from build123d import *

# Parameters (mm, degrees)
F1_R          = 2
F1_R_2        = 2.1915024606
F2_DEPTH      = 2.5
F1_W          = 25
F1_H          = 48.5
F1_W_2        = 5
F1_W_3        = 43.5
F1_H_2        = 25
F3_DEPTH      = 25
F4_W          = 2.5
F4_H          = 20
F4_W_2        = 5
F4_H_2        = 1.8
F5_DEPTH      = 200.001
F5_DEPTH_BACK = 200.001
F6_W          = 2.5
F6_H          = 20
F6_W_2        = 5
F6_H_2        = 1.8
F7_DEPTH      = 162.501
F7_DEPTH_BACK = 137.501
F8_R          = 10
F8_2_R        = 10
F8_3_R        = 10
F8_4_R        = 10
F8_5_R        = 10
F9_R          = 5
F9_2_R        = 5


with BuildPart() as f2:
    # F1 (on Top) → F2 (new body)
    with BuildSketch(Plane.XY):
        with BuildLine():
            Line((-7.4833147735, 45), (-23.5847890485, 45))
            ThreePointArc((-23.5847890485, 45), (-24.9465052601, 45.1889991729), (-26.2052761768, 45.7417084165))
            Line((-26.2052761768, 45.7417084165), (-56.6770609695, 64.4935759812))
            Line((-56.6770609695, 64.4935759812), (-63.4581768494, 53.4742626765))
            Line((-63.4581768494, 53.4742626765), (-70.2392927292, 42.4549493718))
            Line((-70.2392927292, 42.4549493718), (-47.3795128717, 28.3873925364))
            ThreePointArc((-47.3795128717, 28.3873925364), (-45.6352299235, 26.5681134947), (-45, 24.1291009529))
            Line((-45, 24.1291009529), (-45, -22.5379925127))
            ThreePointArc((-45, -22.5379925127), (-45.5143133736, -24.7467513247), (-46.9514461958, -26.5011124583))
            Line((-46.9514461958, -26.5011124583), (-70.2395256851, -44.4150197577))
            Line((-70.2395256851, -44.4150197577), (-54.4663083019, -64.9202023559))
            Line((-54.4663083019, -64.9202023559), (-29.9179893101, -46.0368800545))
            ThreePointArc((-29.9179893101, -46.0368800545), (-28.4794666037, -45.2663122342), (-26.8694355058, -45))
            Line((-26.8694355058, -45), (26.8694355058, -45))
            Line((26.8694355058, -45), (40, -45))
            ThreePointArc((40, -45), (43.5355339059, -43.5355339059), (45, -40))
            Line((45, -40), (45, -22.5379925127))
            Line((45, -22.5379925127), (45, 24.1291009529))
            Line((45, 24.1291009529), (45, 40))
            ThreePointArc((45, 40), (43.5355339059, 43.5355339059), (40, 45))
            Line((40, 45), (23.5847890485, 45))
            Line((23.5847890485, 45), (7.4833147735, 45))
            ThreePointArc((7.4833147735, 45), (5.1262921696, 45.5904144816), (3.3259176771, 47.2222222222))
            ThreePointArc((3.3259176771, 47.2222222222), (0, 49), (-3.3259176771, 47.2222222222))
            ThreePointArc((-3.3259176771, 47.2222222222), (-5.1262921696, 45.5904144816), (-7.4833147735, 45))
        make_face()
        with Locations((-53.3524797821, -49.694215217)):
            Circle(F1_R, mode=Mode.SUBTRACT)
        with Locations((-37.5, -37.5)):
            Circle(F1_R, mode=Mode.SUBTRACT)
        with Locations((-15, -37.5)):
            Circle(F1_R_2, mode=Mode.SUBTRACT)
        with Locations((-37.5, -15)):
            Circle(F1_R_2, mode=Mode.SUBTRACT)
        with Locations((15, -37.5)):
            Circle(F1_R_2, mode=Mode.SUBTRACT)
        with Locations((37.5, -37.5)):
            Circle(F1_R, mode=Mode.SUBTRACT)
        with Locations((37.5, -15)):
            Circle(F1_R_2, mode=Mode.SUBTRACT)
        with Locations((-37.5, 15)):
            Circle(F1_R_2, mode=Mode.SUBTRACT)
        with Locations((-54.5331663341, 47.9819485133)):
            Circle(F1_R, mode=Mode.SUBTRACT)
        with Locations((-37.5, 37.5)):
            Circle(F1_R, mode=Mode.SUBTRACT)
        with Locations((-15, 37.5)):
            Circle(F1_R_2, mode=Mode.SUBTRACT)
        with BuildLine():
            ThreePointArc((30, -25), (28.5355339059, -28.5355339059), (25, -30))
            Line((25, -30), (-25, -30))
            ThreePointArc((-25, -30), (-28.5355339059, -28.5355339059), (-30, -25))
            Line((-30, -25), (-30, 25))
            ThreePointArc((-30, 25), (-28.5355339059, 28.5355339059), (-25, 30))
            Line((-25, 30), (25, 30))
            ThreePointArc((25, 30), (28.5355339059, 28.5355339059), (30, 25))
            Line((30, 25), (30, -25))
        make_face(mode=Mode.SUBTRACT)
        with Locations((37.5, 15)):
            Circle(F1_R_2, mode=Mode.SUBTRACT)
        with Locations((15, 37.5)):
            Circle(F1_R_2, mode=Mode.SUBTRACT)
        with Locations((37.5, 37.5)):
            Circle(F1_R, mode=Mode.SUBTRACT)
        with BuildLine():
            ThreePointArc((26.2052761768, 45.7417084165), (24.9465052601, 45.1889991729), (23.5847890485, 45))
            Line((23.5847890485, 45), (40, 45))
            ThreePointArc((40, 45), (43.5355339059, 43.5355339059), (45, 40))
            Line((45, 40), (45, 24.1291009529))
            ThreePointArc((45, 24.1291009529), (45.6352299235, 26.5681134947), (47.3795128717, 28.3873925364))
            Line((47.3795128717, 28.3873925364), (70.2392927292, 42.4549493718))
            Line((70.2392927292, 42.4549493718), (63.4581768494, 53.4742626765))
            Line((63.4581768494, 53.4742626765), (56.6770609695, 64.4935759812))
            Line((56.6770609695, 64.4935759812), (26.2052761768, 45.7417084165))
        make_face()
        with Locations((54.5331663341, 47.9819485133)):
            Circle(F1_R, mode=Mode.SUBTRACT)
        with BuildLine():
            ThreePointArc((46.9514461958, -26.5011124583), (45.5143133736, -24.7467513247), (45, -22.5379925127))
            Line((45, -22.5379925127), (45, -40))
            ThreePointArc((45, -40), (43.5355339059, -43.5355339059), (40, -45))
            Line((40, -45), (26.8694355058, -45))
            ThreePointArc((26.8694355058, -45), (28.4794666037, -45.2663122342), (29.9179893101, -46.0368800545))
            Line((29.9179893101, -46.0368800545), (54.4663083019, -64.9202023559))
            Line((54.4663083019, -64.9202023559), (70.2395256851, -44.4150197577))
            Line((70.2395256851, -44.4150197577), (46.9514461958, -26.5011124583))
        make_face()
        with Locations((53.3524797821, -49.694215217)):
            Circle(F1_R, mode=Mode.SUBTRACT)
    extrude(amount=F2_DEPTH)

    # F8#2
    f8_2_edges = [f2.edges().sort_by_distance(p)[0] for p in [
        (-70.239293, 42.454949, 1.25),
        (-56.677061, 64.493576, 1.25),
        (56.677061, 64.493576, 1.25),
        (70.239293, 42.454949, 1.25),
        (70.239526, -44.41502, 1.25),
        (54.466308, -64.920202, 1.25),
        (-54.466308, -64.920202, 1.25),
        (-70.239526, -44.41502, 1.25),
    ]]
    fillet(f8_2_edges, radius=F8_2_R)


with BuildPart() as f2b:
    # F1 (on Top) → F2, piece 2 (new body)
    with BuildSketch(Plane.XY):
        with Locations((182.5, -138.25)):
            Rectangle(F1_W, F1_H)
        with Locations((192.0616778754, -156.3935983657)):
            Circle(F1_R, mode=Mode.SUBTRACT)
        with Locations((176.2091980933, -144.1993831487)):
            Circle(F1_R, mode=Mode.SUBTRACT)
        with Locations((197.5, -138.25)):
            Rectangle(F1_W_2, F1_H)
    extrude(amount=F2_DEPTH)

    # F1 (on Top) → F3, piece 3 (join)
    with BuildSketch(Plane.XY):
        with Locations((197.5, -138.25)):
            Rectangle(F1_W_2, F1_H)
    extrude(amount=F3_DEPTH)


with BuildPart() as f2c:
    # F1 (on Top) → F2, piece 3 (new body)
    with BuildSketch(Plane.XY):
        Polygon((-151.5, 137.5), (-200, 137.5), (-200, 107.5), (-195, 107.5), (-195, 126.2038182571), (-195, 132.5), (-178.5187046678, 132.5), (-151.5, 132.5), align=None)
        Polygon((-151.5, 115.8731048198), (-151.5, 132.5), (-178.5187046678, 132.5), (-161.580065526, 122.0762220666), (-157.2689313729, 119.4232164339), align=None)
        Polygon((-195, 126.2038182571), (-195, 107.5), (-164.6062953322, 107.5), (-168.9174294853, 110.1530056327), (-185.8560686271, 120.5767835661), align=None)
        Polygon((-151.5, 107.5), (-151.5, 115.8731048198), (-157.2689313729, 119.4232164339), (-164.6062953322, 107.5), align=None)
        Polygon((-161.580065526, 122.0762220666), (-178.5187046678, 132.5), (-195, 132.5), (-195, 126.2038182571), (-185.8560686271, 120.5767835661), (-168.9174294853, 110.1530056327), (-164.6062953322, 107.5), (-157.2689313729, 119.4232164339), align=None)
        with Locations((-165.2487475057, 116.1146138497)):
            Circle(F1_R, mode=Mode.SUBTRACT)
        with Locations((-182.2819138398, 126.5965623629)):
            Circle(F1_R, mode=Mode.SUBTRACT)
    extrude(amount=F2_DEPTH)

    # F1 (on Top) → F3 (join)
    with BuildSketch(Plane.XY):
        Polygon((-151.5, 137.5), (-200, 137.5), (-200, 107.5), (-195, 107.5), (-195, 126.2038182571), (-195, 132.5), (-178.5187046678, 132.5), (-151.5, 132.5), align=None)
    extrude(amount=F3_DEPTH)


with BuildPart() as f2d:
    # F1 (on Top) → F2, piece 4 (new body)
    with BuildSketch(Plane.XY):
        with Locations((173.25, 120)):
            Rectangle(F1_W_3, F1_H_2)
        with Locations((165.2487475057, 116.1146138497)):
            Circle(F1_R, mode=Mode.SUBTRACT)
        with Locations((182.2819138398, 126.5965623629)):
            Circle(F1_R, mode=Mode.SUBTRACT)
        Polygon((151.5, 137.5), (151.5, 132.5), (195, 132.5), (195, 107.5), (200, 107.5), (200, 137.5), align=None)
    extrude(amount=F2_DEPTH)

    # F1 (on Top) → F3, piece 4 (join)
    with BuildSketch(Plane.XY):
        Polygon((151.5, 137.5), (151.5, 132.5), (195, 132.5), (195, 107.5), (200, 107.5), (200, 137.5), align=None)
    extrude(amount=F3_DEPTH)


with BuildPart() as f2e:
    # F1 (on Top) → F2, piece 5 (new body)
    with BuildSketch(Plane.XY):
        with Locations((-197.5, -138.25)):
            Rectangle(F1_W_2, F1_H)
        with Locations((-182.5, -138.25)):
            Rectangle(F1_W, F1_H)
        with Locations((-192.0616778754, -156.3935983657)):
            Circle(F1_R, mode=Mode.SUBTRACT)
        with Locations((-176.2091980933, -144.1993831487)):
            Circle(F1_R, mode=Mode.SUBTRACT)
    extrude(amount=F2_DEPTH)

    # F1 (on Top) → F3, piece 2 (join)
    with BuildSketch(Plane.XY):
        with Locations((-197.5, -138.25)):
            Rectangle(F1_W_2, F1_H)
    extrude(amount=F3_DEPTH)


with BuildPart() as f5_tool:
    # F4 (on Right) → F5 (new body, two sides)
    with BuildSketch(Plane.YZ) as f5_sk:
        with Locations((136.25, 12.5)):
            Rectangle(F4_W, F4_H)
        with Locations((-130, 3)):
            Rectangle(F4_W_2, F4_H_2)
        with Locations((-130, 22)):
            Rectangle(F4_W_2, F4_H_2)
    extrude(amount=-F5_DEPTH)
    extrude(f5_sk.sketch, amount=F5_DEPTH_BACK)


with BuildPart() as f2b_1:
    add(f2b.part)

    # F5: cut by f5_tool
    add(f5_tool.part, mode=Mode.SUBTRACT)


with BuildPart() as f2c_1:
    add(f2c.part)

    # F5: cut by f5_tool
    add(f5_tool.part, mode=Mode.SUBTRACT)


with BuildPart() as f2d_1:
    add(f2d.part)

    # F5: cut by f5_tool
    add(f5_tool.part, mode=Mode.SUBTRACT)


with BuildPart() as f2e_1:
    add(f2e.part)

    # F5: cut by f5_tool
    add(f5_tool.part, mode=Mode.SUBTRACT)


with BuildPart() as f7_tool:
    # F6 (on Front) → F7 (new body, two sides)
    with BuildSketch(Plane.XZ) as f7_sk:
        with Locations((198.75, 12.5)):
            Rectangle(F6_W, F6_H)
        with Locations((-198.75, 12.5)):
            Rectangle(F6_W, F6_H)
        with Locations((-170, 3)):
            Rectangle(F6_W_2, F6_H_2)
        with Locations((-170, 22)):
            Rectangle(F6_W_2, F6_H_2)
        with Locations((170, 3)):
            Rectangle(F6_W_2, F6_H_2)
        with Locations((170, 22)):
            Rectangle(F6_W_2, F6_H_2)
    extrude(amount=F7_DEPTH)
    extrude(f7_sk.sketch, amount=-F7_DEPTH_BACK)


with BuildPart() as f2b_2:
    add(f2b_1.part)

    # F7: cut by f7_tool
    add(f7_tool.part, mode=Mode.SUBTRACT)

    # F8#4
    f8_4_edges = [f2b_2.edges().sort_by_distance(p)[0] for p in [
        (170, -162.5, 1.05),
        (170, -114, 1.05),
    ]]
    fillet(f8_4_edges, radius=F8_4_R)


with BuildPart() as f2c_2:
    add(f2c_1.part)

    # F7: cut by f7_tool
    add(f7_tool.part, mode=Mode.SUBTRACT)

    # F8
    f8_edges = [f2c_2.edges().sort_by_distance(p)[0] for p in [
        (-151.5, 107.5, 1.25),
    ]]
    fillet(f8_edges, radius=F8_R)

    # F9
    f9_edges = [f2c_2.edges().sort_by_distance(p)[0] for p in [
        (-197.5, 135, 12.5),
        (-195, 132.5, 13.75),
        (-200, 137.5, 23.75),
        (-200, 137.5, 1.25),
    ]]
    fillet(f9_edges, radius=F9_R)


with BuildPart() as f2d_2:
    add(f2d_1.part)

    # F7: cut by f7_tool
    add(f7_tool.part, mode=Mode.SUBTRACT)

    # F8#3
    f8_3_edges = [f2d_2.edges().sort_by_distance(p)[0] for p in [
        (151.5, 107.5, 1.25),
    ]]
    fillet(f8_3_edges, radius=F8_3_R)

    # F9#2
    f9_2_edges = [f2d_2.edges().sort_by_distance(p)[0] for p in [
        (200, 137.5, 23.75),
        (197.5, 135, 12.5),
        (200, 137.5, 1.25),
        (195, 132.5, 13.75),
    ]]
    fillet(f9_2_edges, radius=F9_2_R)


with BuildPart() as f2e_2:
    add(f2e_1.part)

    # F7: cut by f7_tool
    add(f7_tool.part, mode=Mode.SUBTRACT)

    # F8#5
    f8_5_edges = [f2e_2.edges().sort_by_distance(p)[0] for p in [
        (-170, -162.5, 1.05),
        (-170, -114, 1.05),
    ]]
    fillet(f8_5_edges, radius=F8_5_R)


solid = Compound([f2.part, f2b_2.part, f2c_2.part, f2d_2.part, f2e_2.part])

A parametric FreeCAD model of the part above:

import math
import FreeCAD as App
import Part
import Sketcher

V = App.Vector


def edges_at(feature, points):
    """Names of the edges that pass closest to the given points."""
    edges = feature.Shape.Edges
    near = lambda p: min(range(len(edges)), key=lambda i: edges[i].distToShape(Part.Vertex(*p))[0])
    return sorted({f"Edge{near(p) + 1}" for p in points})

doc = App.newDocument("Part")
params = doc.addObject("Spreadsheet::Sheet", "Params")
for row, (alias, value) in enumerate([
    ("sketch1_diameter", "4 mm"),
    ("sketch1_radius", "5 mm"),
    ("sketch1_radius2", "4 mm"),
    ("sketch1_width", "50 mm"),
    ("sketch1_length", "25.87 mm"),
    ("pad1_length", "2.5 mm"),
    ("fillet_radius", "10 mm"),
    ("sketch2_diameter", "4 mm"),
    ("sketch2_width", "30 mm"),
    ("sketch2_height", "48.5 mm"),
    ("pad2_length", "2.5 mm"),
    ("sketch3_width", "5 mm"),
    ("sketch3_height", "48.5 mm"),
    ("pad3_length", "25 mm"),
    ("sketch4_diameter", "4 mm"),
    ("sketch4_height", "30 mm"),
    ("sketch4_width", "48.5 mm"),
    ("pad4_length", "2.5 mm"),
    ("sketch5_width", "5 mm"),
    ("sketch5_height", "30 mm"),
    ("sketch5_width2", "48.5 mm"),
    ("pad5_length", "25 mm"),
    ("sketch6_diameter", "4 mm"),
    ("sketch6_height", "30 mm"),
    ("sketch6_width", "48.5 mm"),
    ("pad6_length", "2.5 mm"),
    ("sketch7_width", "5 mm"),
    ("sketch7_height", "25 mm"),
    ("sketch7_width2", "43.5 mm"),
    ("pad7_length", "25 mm"),
    ("sketch8_diameter", "4 mm"),
    ("sketch8_width", "30 mm"),
    ("sketch8_height", "48.5 mm"),
    ("pad8_length", "2.5 mm"),
    ("sketch9_width", "5 mm"),
    ("sketch9_height", "48.5 mm"),
    ("pad9_length", "25 mm"),
    ("sketch10_width", "5 mm"),
    ("sketch10_height", "20 mm"),
    ("sketch10_width2", "2.5 mm"),
    ("sketch10_height2", "1.8 mm"),
    ("pad10_length", "200.001 mm"),
    ("pad10_length2", "200.001 mm"),
    ("sketch11_width", "5 mm"),
    ("sketch11_height", "20 mm"),
    ("sketch11_width2", "2.5 mm"),
    ("sketch11_height2", "1.8 mm"),
    ("pad11_length", "162.501 mm"),
    ("pad11_length2", "137.501 mm"),
    ("fillet2_radius", "10 mm"),
    ("fillet3_radius", "10 mm"),
    ("fillet4_radius", "5 mm"),
    ("fillet5_radius", "10 mm"),
    ("fillet6_radius", "5 mm"),
    ("fillet7_radius", "10 mm"),
], start=1):
    params.set(f"A{row}", alias)
    params.set(f"B{row}", "=" + value)
    params.setAlias(f"B{row}", alias)

body = doc.addObject("PartDesign::Body", "Body")

sketch1 = doc.addObject("Sketcher::SketchObject", "Sketch")
body.addObject(sketch1)
sketch1.AttachmentSupport = (doc.XY_Plane, [""])
sketch1.MapMode = "FlatFace"
sketch1.addGeometry([
    Part.LineSegment(V(-7.5, 45, 0), V(-23.6, 45, 0)),
    Part.ArcOfCircle(Part.Circle(V(-23.6, 50, 0), V(0, 0, 1), 5), math.radians(-122), math.radians(-90)),
    Part.LineSegment(V(-26.2, 45.7, 0), V(-56.7, 64.5, 0)),
    Part.LineSegment(V(-56.7, 64.5, 0), V(-63.5, 53.5, 0)),
    Part.LineSegment(V(-63.5, 53.5, 0), V(-70.2, 42.5, 0)),
    Part.LineSegment(V(-70.2, 42.5, 0), V(-47.4, 28.4, 0)),
    Part.ArcOfCircle(Part.Circle(V(-50, 24.1, 0), V(0, 0, 1), 5), math.radians(0), math.radians(58)),
    Part.LineSegment(V(-45, 24.1, 0), V(-45, -22.5, 0)),
    Part.ArcOfCircle(Part.Circle(V(-50, -22.5, 0), V(0, 0, 1), 5), math.radians(-52), math.radians(0)),
    Part.LineSegment(V(-47, -26.5, 0), V(-70.2, -44.4, 0)),
    Part.LineSegment(V(-70.2, -44.4, 0), V(-54.5, -64.9, 0)),
    Part.LineSegment(V(-54.5, -64.9, 0), V(-29.9, -46, 0)),
    Part.ArcOfCircle(Part.Circle(V(-26.9, -50, 0), V(0, 0, 1), 5), math.radians(90), math.radians(128)),
    Part.LineSegment(V(-26.9, -45, 0), V(26.9, -45, 0)),
    Part.ArcOfCircle(Part.Circle(V(26.9, -50, 0), V(0, 0, 1), 5), math.radians(52), math.radians(90)),
    Part.LineSegment(V(29.9, -46, 0), V(54.5, -64.9, 0)),
    Part.LineSegment(V(54.5, -64.9, 0), V(70.2, -44.4, 0)),
    Part.LineSegment(V(70.2, -44.4, 0), V(47, -26.5, 0)),
    Part.ArcOfCircle(Part.Circle(V(50, -22.5, 0), V(0, 0, 1), 5), math.radians(180), math.radians(232)),
    Part.LineSegment(V(45, -22.5, 0), V(45, 24.1, 0)),
    Part.ArcOfCircle(Part.Circle(V(50, 24.1, 0), V(0, 0, 1), 5), math.radians(122), math.radians(180)),
    Part.LineSegment(V(47.4, 28.4, 0), V(70.2, 42.5, 0)),
    Part.LineSegment(V(70.2, 42.5, 0), V(63.5, 53.5, 0)),
    Part.LineSegment(V(63.5, 53.5, 0), V(56.7, 64.5, 0)),
    Part.LineSegment(V(56.7, 64.5, 0), V(26.2, 45.7, 0)),
    Part.ArcOfCircle(Part.Circle(V(23.6, 50, 0), V(0, 0, 1), 5), math.radians(-90), math.radians(-58)),
    Part.LineSegment(V(23.6, 45, 0), V(7.5, 45, 0)),
    Part.ArcOfCircle(Part.Circle(V(7.5, 50, 0), V(0, 0, 1), 5), math.radians(-146), math.radians(-90)),
    Part.ArcOfCircle(Part.Circle(V(0, 45, 0), V(0, 0, 1), 4), math.radians(34), math.radians(146)),
    Part.ArcOfCircle(Part.Circle(V(-7.5, 50, 0), V(0, 0, 1), 5), math.radians(-90), math.radians(-34)),
    Part.Circle(V(-53.4, -49.7, 0), V(0, 0, 1), 2),
    Part.Circle(V(-37.5, -37.5, 0), V(0, 0, 1), 2),
    Part.Circle(V(-15, -37.5, 0), V(0, 0, 1), 2.2),
    Part.Circle(V(-37.5, -15, 0), V(0, 0, 1), 2.2),
    Part.Circle(V(15, -37.5, 0), V(0, 0, 1), 2.2),
    Part.Circle(V(53.4, -49.7, 0), V(0, 0, 1), 2),
    Part.Circle(V(37.5, -37.5, 0), V(0, 0, 1), 2),
    Part.Circle(V(37.5, -15, 0), V(0, 0, 1), 2.2),
    Part.Circle(V(-37.5, 15, 0), V(0, 0, 1), 2.2),
    Part.Circle(V(-54.5, 48, 0), V(0, 0, 1), 2),
    Part.Circle(V(-37.5, 37.5, 0), V(0, 0, 1), 2),
    Part.Circle(V(-15, 37.5, 0), V(0, 0, 1), 2.2),
    Part.LineSegment(V(30, 25, 0), V(30, -25, 0)),
    Part.ArcOfCircle(Part.Circle(V(25, -25, 0), V(0, 0, 1), 5), math.radians(-90), math.radians(0)),
    Part.LineSegment(V(25, -30, 0), V(-25, -30, 0)),
    Part.ArcOfCircle(Part.Circle(V(-25, -25, 0), V(0, 0, 1), 5), math.radians(180), math.radians(270)),
    Part.LineSegment(V(-30, -25, 0), V(-30, 25, 0)),
    Part.ArcOfCircle(Part.Circle(V(-25, 25, 0), V(0, 0, 1), 5), math.radians(90), math.radians(180)),
    Part.LineSegment(V(-25, 30, 0), V(25, 30, 0)),
    Part.ArcOfCircle(Part.Circle(V(25, 25, 0), V(0, 0, 1), 5), math.radians(0), math.radians(90)),
    Part.Circle(V(37.5, 15, 0), V(0, 0, 1), 2.2),
    Part.Circle(V(15, 37.5, 0), V(0, 0, 1), 2.2),
    Part.Circle(V(37.5, 37.5, 0), V(0, 0, 1), 2),
    Part.Circle(V(54.5, 48, 0), V(0, 0, 1), 2),
], False)
sketch1.addConstraint([
    Sketcher.Constraint("Tangent", 0, 2, 1, 2),
    Sketcher.Constraint("Tangent", 1, 1, 2, 1),
    Sketcher.Constraint("Coincident", 2, 2, 3, 1),
    Sketcher.Constraint("Coincident", 3, 2, 4, 1),
    Sketcher.Constraint("Coincident", 4, 2, 5, 1),
    Sketcher.Constraint("Tangent", 5, 2, 6, 2),
    Sketcher.Constraint("Tangent", 6, 1, 7, 1),
    Sketcher.Constraint("Tangent", 7, 2, 8, 2),
    Sketcher.Constraint("Tangent", 8, 1, 9, 1),
    Sketcher.Constraint("Coincident", 9, 2, 10, 1),
    Sketcher.Constraint("Coincident", 10, 2, 11, 1),
    Sketcher.Constraint("Tangent", 11, 2, 12, 2),
    Sketcher.Constraint("Tangent", 12, 1, 13, 1),
    Sketcher.Constraint("Tangent", 13, 2, 14, 2),
    Sketcher.Constraint("Tangent", 14, 1, 15, 1),
    Sketcher.Constraint("Coincident", 15, 2, 16, 1),
    Sketcher.Constraint("Coincident", 16, 2, 17, 1),
    Sketcher.Constraint("Tangent", 17, 2, 18, 2),
    Sketcher.Constraint("Tangent", 18, 1, 19, 1),
    Sketcher.Constraint("Tangent", 19, 2, 20, 2),
    Sketcher.Constraint("Tangent", 20, 1, 21, 1),
    Sketcher.Constraint("Coincident", 21, 2, 22, 1),
    Sketcher.Constraint("Coincident", 22, 2, 23, 1),
    Sketcher.Constraint("Coincident", 23, 2, 24, 1),
    Sketcher.Constraint("Tangent", 24, 2, 25, 2),
    Sketcher.Constraint("Tangent", 25, 1, 26, 1),
    Sketcher.Constraint("Tangent", 26, 2, 27, 2),
    Sketcher.Constraint("Tangent", 27, 1, 28, 1),
    Sketcher.Constraint("Tangent", 28, 2, 29, 2),
    Sketcher.Constraint("Tangent", 29, 1, 0, 1),
    Sketcher.Constraint("Tangent", 42, 2, 43, 2),
    Sketcher.Constraint("Tangent", 43, 1, 44, 1),
    Sketcher.Constraint("Tangent", 44, 2, 45, 2),
    Sketcher.Constraint("Tangent", 45, 1, 46, 1),
    Sketcher.Constraint("Tangent", 46, 2, 47, 2),
    Sketcher.Constraint("Tangent", 47, 1, 48, 1),
    Sketcher.Constraint("Tangent", 48, 2, 49, 2),
    Sketcher.Constraint("Tangent", 49, 1, 42, 1),
    Sketcher.Constraint("Horizontal", 0),
    Sketcher.Constraint("Vertical", 7),
    Sketcher.Constraint("Horizontal", 13),
    Sketcher.Constraint("Vertical", 19),
    Sketcher.Constraint("Horizontal", 26),
    Sketcher.Constraint("Vertical", 42),
    Sketcher.Constraint("Horizontal", 44),
    Sketcher.Constraint("Vertical", 46),
    Sketcher.Constraint("Horizontal", 48),
    Sketcher.Constraint("Equal", 1, 6),
    Sketcher.Constraint("Equal", 6, 8),
    Sketcher.Constraint("Equal", 8, 12),
    Sketcher.Constraint("Equal", 12, 14),
    Sketcher.Constraint("Equal", 14, 18),
    Sketcher.Constraint("Equal", 18, 20),
    Sketcher.Constraint("Equal", 20, 25),
    Sketcher.Constraint("Equal", 25, 27),
    Sketcher.Constraint("Equal", 27, 29),
    Sketcher.Constraint("Equal", 30, 31),
    Sketcher.Constraint("Equal", 32, 33),
    Sketcher.Constraint("Equal", 33, 34),
    Sketcher.Constraint("Equal", 31, 35),
    Sketcher.Constraint("Equal", 35, 36),
    Sketcher.Constraint("Equal", 34, 37),
    Sketcher.Constraint("Equal", 37, 38),
    Sketcher.Constraint("Equal", 36, 39),
    Sketcher.Constraint("Equal", 39, 40),
    Sketcher.Constraint("Equal", 38, 41),
    Sketcher.Constraint("Equal", 29, 43),
    Sketcher.Constraint("Equal", 43, 45),
    Sketcher.Constraint("Equal", 45, 47),
    Sketcher.Constraint("Equal", 47, 49),
    Sketcher.Constraint("Equal", 41, 50),
    Sketcher.Constraint("Equal", 50, 51),
    Sketcher.Constraint("Equal", 40, 52),
    Sketcher.Constraint("Equal", 52, 53),
    Sketcher.Constraint("Symmetric", 37, 3, 38, 3, -1, 1),
    Sketcher.Constraint("Symmetric", 36, 3, 40, 3, -1, 1),
    Sketcher.Constraint("Symmetric", 34, 3, 41, 3, -1, 1),
    Sketcher.Constraint("Symmetric", 43, 3, 47, 3, -1, 1),
    Sketcher.Constraint("Symmetric", 33, 3, 50, 3, -1, 1),
    Sketcher.Constraint("Symmetric", 32, 3, 51, 3, -1, 1),
    Sketcher.Constraint("Symmetric", 31, 3, 52, 3, -1, 1),
    Sketcher.Constraint("Symmetric", 8, 3, 18, 3, -2),
    Sketcher.Constraint("Symmetric", 1, 3, 25, 3, -2),
    Sketcher.Constraint("Symmetric", 32, 3, 34, 3, -2),
    Sketcher.Constraint("Symmetric", 30, 3, 35, 3, -2),
    Sketcher.Constraint("Symmetric", 31, 3, 36, 3, -2),
    Sketcher.Constraint("Symmetric", 33, 3, 37, 3, -2),
    Sketcher.Constraint("Symmetric", 39, 3, 53, 3, -2),
    Sketcher.Constraint("Symmetric", 11, 2, 14, 1, -2),
    Sketcher.Constraint("Symmetric", 9, 2, 16, 2, -2),
    Sketcher.Constraint("Symmetric", 5, 2, 20, 1, -2),
    Sketcher.Constraint("Symmetric", 3, 2, 22, 2, -2),
    Sketcher.Constraint("Symmetric", 2, 2, 23, 2, -2),
    Sketcher.Constraint("PointOnObject", 28, 3, -2),
    Sketcher.Constraint("Perpendicular", 2, 3),
    Sketcher.Constraint("Parallel", 3, 4),
    Sketcher.Constraint("Perpendicular", 4, 5),
    Sketcher.Constraint("Perpendicular", 9, 10),
    Sketcher.Constraint("Perpendicular", 10, 11),
    Sketcher.Constraint("Perpendicular", 15, 16),
    Sketcher.Constraint("Perpendicular", 21, 22),
    Sketcher.Constraint("Horizontal", 31, 3, 32, 3),
    Sketcher.Constraint("Horizontal", 28, 3, 0, 2),
    Sketcher.Constraint("Vertical", 31, 3, 33, 3),
    Sketcher.Constraint("Equal", 48, 42),
    Sketcher.Constraint("Equal", 3, 4),
    Sketcher.Constraint("Diameter", 30, 4.0),
    Sketcher.Constraint("Radius", 1, 5.0),
    Sketcher.Constraint("Radius", 28, 4.0),
    Sketcher.Constraint("DistanceX", 44, 2, 44, 1, 50.0),
    Sketcher.Constraint("DistanceY", -1, 1, 1, 3, 50.0),
    Sketcher.Constraint("DistanceX", 6, 3, -1, 1, 50.0),
    Sketcher.Constraint("DistanceY", 12, 3, -1, 1, 50.0),
    Sketcher.Constraint("DistanceX", 32, 3, -1, 1, 15.0),
    Sketcher.Constraint("DistanceY", 33, 3, -1, 1, 15.0),
    Sketcher.Constraint("DistanceX", 31, 3, -1, 1, 37.5),
    Sketcher.Constraint("DistanceY", 31, 3, -1, 1, 37.5),
    Sketcher.Constraint("Distance", 10, 25.87),
    Sketcher.Constraint("Diameter", 32, 4.383005),
    Sketcher.Constraint("DistanceX", 13, 1, 13, 2, 53.738871),
    Sketcher.Constraint("DistanceY", -1, 1, 6, 3, 24.129101),
    Sketcher.Constraint("Distance", 5, 26.841492),
    Sketcher.Constraint("Distance", 11, 30.970951),
    Sketcher.Constraint("DistanceX", 0, 2, 0, 1, 16.101474),
    Sketcher.Constraint("DistanceY", 7, 2, 7, 1, 46.667093),
    Sketcher.Constraint("DistanceX", 30, 3, -1, 1, 53.35248),
    Sketcher.Constraint("DistanceY", -1, 1, 39, 3, 47.981949),
    Sketcher.Constraint("DistanceY", -1, 1, 1, 1, 45.741708),
    Sketcher.Constraint("DistanceY", 30, 3, -1, 1, 49.694215),
    Sketcher.Constraint("DistanceX", 39, 3, -1, 1, 54.533166),
])
sketch1.setExpression("Constraints[106]", "Params.sketch1_diameter")
sketch1.setExpression("Constraints[107]", "Params.sketch1_radius")
sketch1.setExpression("Constraints[108]", "Params.sketch1_radius2")
sketch1.setExpression("Constraints[109]", "Params.sketch1_width")
sketch1.setExpression("Constraints[117]", "Params.sketch1_length")
pad1 = doc.addObject("PartDesign::Pad", "Pad")
body.addObject(pad1)
pad1.Profile = sketch1
pad1.setExpression("Length", "Params.pad1_length")
doc.recompute()

fillet = doc.addObject("PartDesign::Fillet", "Fillet")
body.addObject(fillet)
fillet.Base = (pad1, edges_at(pad1, [
    (-70.239, 42.455, 1.25),
    (-56.677, 64.494, 1.25),
    (56.677, 64.494, 1.25),
    (70.239, 42.455, 1.25),
    (70.24, -44.415, 1.25),
    (54.466, -64.92, 1.25),
    (-54.466, -64.92, 1.25),
    (-70.24, -44.415, 1.25),
]))
fillet.setExpression("Radius", "Params.fillet_radius")
body2 = doc.addObject("PartDesign::Body", "Body001")

sketch2 = doc.addObject("Sketcher::SketchObject", "Sketch001")
body2.addObject(sketch2)
sketch2.AttachmentSupport = (doc.getObject("XY_Plane001"), [""])
sketch2.MapMode = "FlatFace"
sketch2.addGeometry([
    Part.LineSegment(V(170, -114, 0), V(170, -162.5, 0)),
    Part.LineSegment(V(170, -162.5, 0), V(200, -162.5, 0)),
    Part.LineSegment(V(200, -162.5, 0), V(200, -114, 0)),
    Part.LineSegment(V(200, -114, 0), V(170, -114, 0)),
    Part.Circle(V(192.1, -156.4, 0), V(0, 0, 1), 2),
    Part.Circle(V(176.2, -144.2, 0), V(0, 0, 1), 2),
], False)
sketch2.addConstraint([
    Sketcher.Constraint("Coincident", 0, 2, 1, 1),
    Sketcher.Constraint("Coincident", 1, 2, 2, 1),
    Sketcher.Constraint("Coincident", 2, 2, 3, 1),
    Sketcher.Constraint("Coincident", 3, 2, 0, 1),
    Sketcher.Constraint("Vertical", 0),
    Sketcher.Constraint("Horizontal", 1),
    Sketcher.Constraint("Vertical", 2),
    Sketcher.Constraint("Horizontal", 3),
    Sketcher.Constraint("Equal", 4, 5),
    Sketcher.Constraint("Diameter", 4, 4.0),
    Sketcher.Constraint("DistanceX", 1, 1, 1, 2, 30.0),
    Sketcher.Constraint("DistanceY", 0, 2, 0, 1, 48.5),
    Sketcher.Constraint("DistanceX", -1, 1, 0, 2, 170.0),
    Sketcher.Constraint("DistanceY", 2, 2, -1, 1, 114.0),
    Sketcher.Constraint("DistanceY", 4, 3, -1, 1, 156.393598),
    Sketcher.Constraint("DistanceX", -1, 1, 5, 3, 176.209198),
    Sketcher.Constraint("DistanceX", 5, 3, 4, 3, 15.85248),
    Sketcher.Constraint("DistanceY", 5, 3, -1, 1, 144.199383),
])
sketch2.setExpression("Constraints[9]", "Params.sketch2_diameter")
sketch2.setExpression("Constraints[10]", "Params.sketch2_width")
sketch2.setExpression("Constraints[11]", "Params.sketch2_height")
pad2 = doc.addObject("PartDesign::Pad", "Pad001")
body2.addObject(pad2)
pad2.Profile = sketch2
pad2.setExpression("Length", "Params.pad2_length")

sketch3 = doc.addObject("Sketcher::SketchObject", "Sketch002")
body2.addObject(sketch3)
sketch3.AttachmentSupport = (doc.getObject("XY_Plane001"), [""])
sketch3.MapMode = "FlatFace"
sketch3.addGeometry([
    Part.LineSegment(V(195, -114, 0), V(195, -162, 0)),
    Part.LineSegment(V(195, -162, 0), V(200, -162, 0)),
    Part.LineSegment(V(200, -162, 0), V(200, -114, 0)),
    Part.LineSegment(V(200, -114, 0), V(195, -114, 0)),
], False)
sketch3.addConstraint([
    Sketcher.Constraint("Coincident", 0, 2, 1, 1),
    Sketcher.Constraint("Coincident", 1, 2, 2, 1),
    Sketcher.Constraint("Coincident", 2, 2, 3, 1),
    Sketcher.Constraint("Coincident", 3, 2, 0, 1),
    Sketcher.Constraint("Vertical", 0),
    Sketcher.Constraint("Horizontal", 1),
    Sketcher.Constraint("Vertical", 2),
    Sketcher.Constraint("Horizontal", 3),
    Sketcher.Constraint("DistanceX", 1, 1, 1, 2, 5.0),
    Sketcher.Constraint("DistanceY", 0, 2, 0, 1, 48.5),
    Sketcher.Constraint("DistanceX", -1, 1, 0, 2, 195.0),
    Sketcher.Constraint("DistanceY", 2, 2, -1, 1, 114.0),
])
sketch3.setExpression("Constraints[8]", "Params.sketch3_width")
sketch3.setExpression("Constraints[9]", "Params.sketch3_height")
pad3 = doc.addObject("PartDesign::Pad", "Pad002")
body2.addObject(pad3)
pad3.Profile = sketch3
pad3.setExpression("Length", "Params.pad3_length")
body3 = doc.addObject("PartDesign::Body", "Body002")

sketch4 = doc.addObject("Sketcher::SketchObject", "Sketch003")
body3.addObject(sketch4)
sketch4.AttachmentSupport = (doc.getObject("XY_Plane002"), [""])
sketch4.MapMode = "FlatFace"
sketch4.addGeometry([
    Part.LineSegment(V(-200, 107.5, 0), V(-151.5, 107.5, 0)),
    Part.LineSegment(V(-151.5, 107.5, 0), V(-151.5, 137.5, 0)),
    Part.LineSegment(V(-151.5, 137.5, 0), V(-200, 137.5, 0)),
    Part.LineSegment(V(-200, 137.5, 0), V(-200, 107.5, 0)),
    Part.Circle(V(-165.2, 116.1, 0), V(0, 0, 1), 2),
    Part.Circle(V(-182.3, 126.6, 0), V(0, 0, 1), 2),
], False)
sketch4.addConstraint([
    Sketcher.Constraint("Coincident", 0, 2, 1, 1),
    Sketcher.Constraint("Coincident", 1, 2, 2, 1),
    Sketcher.Constraint("Coincident", 2, 2, 3, 1),
    Sketcher.Constraint("Coincident", 3, 2, 0, 1),
    Sketcher.Constraint("Horizontal", 0),
    Sketcher.Constraint("Vertical", 1),
    Sketcher.Constraint("Horizontal", 2),
    Sketcher.Constraint("Vertical", 3),
    Sketcher.Constraint("Equal", 4, 5),
    Sketcher.Constraint("Diameter", 4, 4.0),
    Sketcher.Constraint("DistanceY", 1, 1, 1, 2, 30.0),
    Sketcher.Constraint("DistanceX", 0, 1, 0, 2, 48.5),
    Sketcher.Constraint("DistanceX", 2, 2, -1, 1, 200.0),
    Sketcher.Constraint("DistanceY", -1, 1, 0, 2, 107.5),
    Sketcher.Constraint("DistanceY", 4, 3, 5, 3, 10.481949),
    Sketcher.Constraint("DistanceX", 4, 3, -1, 1, 165.248748),
    Sketcher.Constraint("DistanceY", -1, 1, 4, 3, 116.114614),
    Sketcher.Constraint("DistanceX", 5, 3, -1, 1, 182.281914),
])
sketch4.setExpression("Constraints[9]", "Params.sketch4_diameter")
sketch4.setExpression("Constraints[10]", "Params.sketch4_height")
sketch4.setExpression("Constraints[11]", "Params.sketch4_width")
pad4 = doc.addObject("PartDesign::Pad", "Pad003")
body3.addObject(pad4)
pad4.Profile = sketch4
pad4.setExpression("Length", "Params.pad4_length")

sketch5 = doc.addObject("Sketcher::SketchObject", "Sketch004")
body3.addObject(sketch5)
sketch5.AttachmentSupport = (doc.getObject("XY_Plane002"), [""])
sketch5.MapMode = "FlatFace"
sketch5.addGeometry([
    Part.LineSegment(V(-152, 138, 0), V(-200, 138, 0)),
    Part.LineSegment(V(-200, 138, 0), V(-200, 108, 0)),
    Part.LineSegment(V(-200, 108, 0), V(-195, 108, 0)),
    Part.LineSegment(V(-195, 108, 0), V(-195, 132, 0)),
    Part.LineSegment(V(-195, 132, 0), V(-152, 132, 0)),
    Part.LineSegment(V(-152, 132, 0), V(-152, 138, 0)),
], False)
sketch5.addConstraint([
    Sketcher.Constraint("Coincident", 0, 2, 1, 1),
    Sketcher.Constraint("Coincident", 1, 2, 2, 1),
    Sketcher.Constraint("Coincident", 2, 2, 3, 1),
    Sketcher.Constraint("Coincident", 3, 2, 4, 1),
    Sketcher.Constraint("Coincident", 4, 2, 5, 1),
    Sketcher.Constraint("Coincident", 5, 2, 0, 1),
    Sketcher.Constraint("Horizontal", 0),
    Sketcher.Constraint("Vertical", 1),
    Sketcher.Constraint("Horizontal", 2),
    Sketcher.Constraint("Vertical", 3),
    Sketcher.Constraint("Horizontal", 4),
    Sketcher.Constraint("Vertical", 5),
    Sketcher.Constraint("Equal", 2, 5),
    Sketcher.Constraint("DistanceX", 2, 1, 2, 2, 5.0),
    Sketcher.Constraint("DistanceY", 1, 2, 1, 1, 30.0),
    Sketcher.Constraint("DistanceX", 0, 2, 0, 1, 48.5),
    Sketcher.Constraint("DistanceX", 0, 2, -1, 1, 200.0),
    Sketcher.Constraint("DistanceY", -1, 1, 0, 2, 137.5),
])
sketch5.setExpression("Constraints[13]", "Params.sketch5_width")
sketch5.setExpression("Constraints[14]", "Params.sketch5_height")
sketch5.setExpression("Constraints[15]", "Params.sketch5_width2")
pad5 = doc.addObject("PartDesign::Pad", "Pad004")
body3.addObject(pad5)
pad5.Profile = sketch5
pad5.setExpression("Length", "Params.pad5_length")
body4 = doc.addObject("PartDesign::Body", "Body003")

sketch6 = doc.addObject("Sketcher::SketchObject", "Sketch005")
body4.addObject(sketch6)
sketch6.AttachmentSupport = (doc.getObject("XY_Plane003"), [""])
sketch6.MapMode = "FlatFace"
sketch6.addGeometry([
    Part.LineSegment(V(151.5, 107.5, 0), V(200, 107.5, 0)),
    Part.LineSegment(V(200, 107.5, 0), V(200, 137.5, 0)),
    Part.LineSegment(V(200, 137.5, 0), V(151.5, 137.5, 0)),
    Part.LineSegment(V(151.5, 137.5, 0), V(151.5, 107.5, 0)),
    Part.Circle(V(165.2, 116.1, 0), V(0, 0, 1), 2),
    Part.Circle(V(182.3, 126.6, 0), V(0, 0, 1), 2),
], False)
sketch6.addConstraint([
    Sketcher.Constraint("Coincident", 0, 2, 1, 1),
    Sketcher.Constraint("Coincident", 1, 2, 2, 1),
    Sketcher.Constraint("Coincident", 2, 2, 3, 1),
    Sketcher.Constraint("Coincident", 3, 2, 0, 1),
    Sketcher.Constraint("Horizontal", 0),
    Sketcher.Constraint("Vertical", 1),
    Sketcher.Constraint("Horizontal", 2),
    Sketcher.Constraint("Vertical", 3),
    Sketcher.Constraint("Equal", 4, 5),
    Sketcher.Constraint("Diameter", 4, 4.0),
    Sketcher.Constraint("DistanceY", 1, 1, 1, 2, 30.0),
    Sketcher.Constraint("DistanceX", 0, 1, 0, 2, 48.5),
    Sketcher.Constraint("DistanceX", -1, 1, 0, 2, 200.0),
    Sketcher.Constraint("DistanceY", -1, 1, 0, 2, 107.5),
    Sketcher.Constraint("DistanceY", 4, 3, 5, 3, 10.481949),
    Sketcher.Constraint("DistanceX", -1, 1, 4, 3, 165.248748),
    Sketcher.Constraint("DistanceY", -1, 1, 4, 3, 116.114614),
    Sketcher.Constraint("DistanceX", -1, 1, 5, 3, 182.281914),
])
sketch6.setExpression("Constraints[9]", "Params.sketch6_diameter")
sketch6.setExpression("Constraints[10]", "Params.sketch6_height")
sketch6.setExpression("Constraints[11]", "Params.sketch6_width")
pad6 = doc.addObject("PartDesign::Pad", "Pad005")
body4.addObject(pad6)
pad6.Profile = sketch6
pad6.setExpression("Length", "Params.pad6_length")

sketch7 = doc.addObject("Sketcher::SketchObject", "Sketch006")
body4.addObject(sketch7)
sketch7.AttachmentSupport = (doc.getObject("XY_Plane003"), [""])
sketch7.MapMode = "FlatFace"
sketch7.addGeometry([
    Part.LineSegment(V(152, 138, 0), V(152, 132, 0)),
    Part.LineSegment(V(152, 132, 0), V(195, 132, 0)),
    Part.LineSegment(V(195, 132, 0), V(195, 108, 0)),
    Part.LineSegment(V(195, 108, 0), V(200, 108, 0)),
    Part.LineSegment(V(200, 108, 0), V(200, 138, 0)),
    Part.LineSegment(V(200, 138, 0), V(152, 138, 0)),
], False)
sketch7.addConstraint([
    Sketcher.Constraint("Coincident", 0, 2, 1, 1),
    Sketcher.Constraint("Coincident", 1, 2, 2, 1),
    Sketcher.Constraint("Coincident", 2, 2, 3, 1),
    Sketcher.Constraint("Coincident", 3, 2, 4, 1),
    Sketcher.Constraint("Coincident", 4, 2, 5, 1),
    Sketcher.Constraint("Coincident", 5, 2, 0, 1),
    Sketcher.Constraint("Vertical", 0),
    Sketcher.Constraint("Horizontal", 1),
    Sketcher.Constraint("Vertical", 2),
    Sketcher.Constraint("Horizontal", 3),
    Sketcher.Constraint("Vertical", 4),
    Sketcher.Constraint("Horizontal", 5),
    Sketcher.Constraint("Equal", 3, 0),
    Sketcher.Constraint("DistanceX", 3, 1, 3, 2, 5.0),
    Sketcher.Constraint("DistanceY", 2, 2, 2, 1, 25.0),
    Sketcher.Constraint("DistanceX", 1, 1, 1, 2, 43.5),
    Sketcher.Constraint("DistanceX", -1, 1, 1, 2, 195.0),
    Sketcher.Constraint("DistanceY", -1, 1, 0, 2, 132.5),
])
sketch7.setExpression("Constraints[13]", "Params.sketch7_width")
sketch7.setExpression("Constraints[14]", "Params.sketch7_height")
sketch7.setExpression("Constraints[15]", "Params.sketch7_width2")
pad7 = doc.addObject("PartDesign::Pad", "Pad006")
body4.addObject(pad7)
pad7.Profile = sketch7
pad7.setExpression("Length", "Params.pad7_length")
body5 = doc.addObject("PartDesign::Body", "Body004")

sketch8 = doc.addObject("Sketcher::SketchObject", "Sketch007")
body5.addObject(sketch8)
sketch8.AttachmentSupport = (doc.getObject("XY_Plane004"), [""])
sketch8.MapMode = "FlatFace"
sketch8.addGeometry([
    Part.LineSegment(V(-200, -114, 0), V(-200, -162.5, 0)),
    Part.LineSegment(V(-200, -162.5, 0), V(-170, -162.5, 0)),
    Part.LineSegment(V(-170, -162.5, 0), V(-170, -114, 0)),
    Part.LineSegment(V(-170, -114, 0), V(-200, -114, 0)),
    Part.Circle(V(-192.1, -156.4, 0), V(0, 0, 1), 2),
    Part.Circle(V(-176.2, -144.2, 0), V(0, 0, 1), 2),
], False)
sketch8.addConstraint([
    Sketcher.Constraint("Coincident", 0, 2, 1, 1),
    Sketcher.Constraint("Coincident", 1, 2, 2, 1),
    Sketcher.Constraint("Coincident", 2, 2, 3, 1),
    Sketcher.Constraint("Coincident", 3, 2, 0, 1),
    Sketcher.Constraint("Vertical", 0),
    Sketcher.Constraint("Horizontal", 1),
    Sketcher.Constraint("Vertical", 2),
    Sketcher.Constraint("Horizontal", 3),
    Sketcher.Constraint("Equal", 4, 5),
    Sketcher.Constraint("Diameter", 4, 4.0),
    Sketcher.Constraint("DistanceX", 1, 1, 1, 2, 30.0),
    Sketcher.Constraint("DistanceY", 0, 2, 0, 1, 48.5),
    Sketcher.Constraint("DistanceX", 0, 2, -1, 1, 200.0),
    Sketcher.Constraint("DistanceY", 2, 2, -1, 1, 114.0),
    Sketcher.Constraint("DistanceY", 4, 3, -1, 1, 156.393598),
    Sketcher.Constraint("DistanceX", 5, 3, -1, 1, 176.209198),
    Sketcher.Constraint("DistanceX", 4, 3, 5, 3, 15.85248),
    Sketcher.Constraint("DistanceY", 5, 3, -1, 1, 144.199383),
])
sketch8.setExpression("Constraints[9]", "Params.sketch8_diameter")
sketch8.setExpression("Constraints[10]", "Params.sketch8_width")
sketch8.setExpression("Constraints[11]", "Params.sketch8_height")
pad8 = doc.addObject("PartDesign::Pad", "Pad007")
body5.addObject(pad8)
pad8.Profile = sketch8
pad8.setExpression("Length", "Params.pad8_length")

sketch9 = doc.addObject("Sketcher::SketchObject", "Sketch008")
body5.addObject(sketch9)
sketch9.AttachmentSupport = (doc.getObject("XY_Plane004"), [""])
sketch9.MapMode = "FlatFace"
sketch9.addGeometry([
    Part.LineSegment(V(-200, -114, 0), V(-200, -162, 0)),
    Part.LineSegment(V(-200, -162, 0), V(-195, -162, 0)),
    Part.LineSegment(V(-195, -162, 0), V(-195, -114, 0)),
    Part.LineSegment(V(-195, -114, 0), V(-200, -114, 0)),
], False)
sketch9.addConstraint([
    Sketcher.Constraint("Coincident", 0, 2, 1, 1),
    Sketcher.Constraint("Coincident", 1, 2, 2, 1),
    Sketcher.Constraint("Coincident", 2, 2, 3, 1),
    Sketcher.Constraint("Coincident", 3, 2, 0, 1),
    Sketcher.Constraint("Vertical", 0),
    Sketcher.Constraint("Horizontal", 1),
    Sketcher.Constraint("Vertical", 2),
    Sketcher.Constraint("Horizontal", 3),
    Sketcher.Constraint("DistanceX", 1, 1, 1, 2, 5.0),
    Sketcher.Constraint("DistanceY", 0, 2, 0, 1, 48.5),
    Sketcher.Constraint("DistanceX", 0, 2, -1, 1, 200.0),
    Sketcher.Constraint("DistanceY", 2, 2, -1, 1, 114.0),
])
sketch9.setExpression("Constraints[8]", "Params.sketch9_width")
sketch9.setExpression("Constraints[9]", "Params.sketch9_height")
pad9 = doc.addObject("PartDesign::Pad", "Pad008")
body5.addObject(pad9)
pad9.Profile = sketch9
pad9.setExpression("Length", "Params.pad9_length")
body6 = doc.addObject("PartDesign::Body", "Body005")
body6.AllowCompound = True

sketch10 = doc.addObject("Sketcher::SketchObject", "Sketch009")
body6.addObject(sketch10)
sketch10.AttachmentSupport = (doc.getObject("YZ_Plane005"), [""])
sketch10.MapMode = "FlatFace"
sketch10.addGeometry([
    Part.LineSegment(V(135, 22.5, 0), V(135, 2.5, 0)),
    Part.LineSegment(V(135, 2.5, 0), V(137.5, 2.5, 0)),
    Part.LineSegment(V(137.5, 2.5, 0), V(137.5, 22.5, 0)),
    Part.LineSegment(V(137.5, 22.5, 0), V(135, 22.5, 0)),
    Part.LineSegment(V(-132.5, 3.9, 0), V(-132.5, 2.1, 0)),
    Part.LineSegment(V(-132.5, 2.1, 0), V(-127.5, 2.1, 0)),
    Part.LineSegment(V(-127.5, 2.1, 0), V(-127.5, 3.9, 0)),
    Part.LineSegment(V(-127.5, 3.9, 0), V(-132.5, 3.9, 0)),
    Part.LineSegment(V(-132.5, 22.9, 0), V(-132.5, 21.1, 0)),
    Part.LineSegment(V(-132.5, 21.1, 0), V(-127.5, 21.1, 0)),
    Part.LineSegment(V(-127.5, 21.1, 0), V(-127.5, 22.9, 0)),
    Part.LineSegment(V(-127.5, 22.9, 0), V(-132.5, 22.9, 0)),
], False)
sketch10.addConstraint([
    Sketcher.Constraint("Coincident", 0, 2, 1, 1),
    Sketcher.Constraint("Coincident", 1, 2, 2, 1),
    Sketcher.Constraint("Coincident", 2, 2, 3, 1),
    Sketcher.Constraint("Coincident", 3, 2, 0, 1),
    Sketcher.Constraint("Coincident", 4, 2, 5, 1),
    Sketcher.Constraint("Coincident", 5, 2, 6, 1),
    Sketcher.Constraint("Coincident", 6, 2, 7, 1),
    Sketcher.Constraint("Coincident", 7, 2, 4, 1),
    Sketcher.Constraint("Coincident", 8, 2, 9, 1),
    Sketcher.Constraint("Coincident", 9, 2, 10, 1),
    Sketcher.Constraint("Coincident", 10, 2, 11, 1),
    Sketcher.Constraint("Coincident", 11, 2, 8, 1),
    Sketcher.Constraint("Vertical", 0),
    Sketcher.Constraint("Horizontal", 1),
    Sketcher.Constraint("Vertical", 2),
    Sketcher.Constraint("Horizontal", 3),
    Sketcher.Constraint("Vertical", 4),
    Sketcher.Constraint("Horizontal", 5),
    Sketcher.Constraint("Vertical", 6),
    Sketcher.Constraint("Horizontal", 7),
    Sketcher.Constraint("Vertical", 8),
    Sketcher.Constraint("Horizontal", 9),
    Sketcher.Constraint("Vertical", 10),
    Sketcher.Constraint("Horizontal", 11),
    Sketcher.Constraint("Vertical", 7, 2, 8, 2),
    Sketcher.Constraint("Vertical", 6, 2, 9, 2),
    Sketcher.Constraint("Equal", 6, 8),
    Sketcher.Constraint("DistanceX", 5, 1, 5, 2, 5.0),
    Sketcher.Constraint("DistanceY", 0, 2, 0, 1, 20.0),
    Sketcher.Constraint("DistanceX", 1, 1, 1, 2, 2.5),
    Sketcher.Constraint("DistanceY", 4, 2, 4, 1, 1.8),
    Sketcher.Constraint("DistanceX", -1, 1, 0, 2, 135.0),
    Sketcher.Constraint("DistanceX", 4, 2, 1, 2, 270.0),
    Sketcher.Constraint("DistanceY", 4, 2, 8, 2, 19.0),
    Sketcher.Constraint("DistanceY", -1, 1, 0, 2, 2.5),
    Sketcher.Constraint("DistanceY", -1, 1, 4, 2, 2.1),
])
sketch10.setExpression("Constraints[27]", "Params.sketch10_width")
sketch10.setExpression("Constraints[28]", "Params.sketch10_height")
sketch10.setExpression("Constraints[29]", "Params.sketch10_width2")
sketch10.setExpression("Constraints[30]", "Params.sketch10_height2")
pad10 = doc.addObject("PartDesign::Pad", "Pad009")
body6.addObject(pad10)
pad10.Profile = sketch10
pad10.Type = "TwoLengths"
pad10.setExpression("Length", "Params.pad10_length")
pad10.setExpression("Length2", "Params.pad10_length2")
pad10.Reversed = True
doc.recompute()

body7 = doc.addObject("PartDesign::Body", "Body006")
body7.BaseFeature = body6
boolean = doc.addObject("PartDesign::Boolean", "Boolean")
body2.addObject(boolean)
boolean.Type = "Cut"
boolean.addObjects([body7])
doc.recompute()

body8 = doc.addObject("PartDesign::Body", "Body007")
body8.BaseFeature = body6
boolean2 = doc.addObject("PartDesign::Boolean", "Boolean001")
body3.addObject(boolean2)
boolean2.Type = "Cut"
boolean2.addObjects([body8])
doc.recompute()

body9 = doc.addObject("PartDesign::Body", "Body008")
body9.BaseFeature = body6
boolean3 = doc.addObject("PartDesign::Boolean", "Boolean002")
body4.addObject(boolean3)
boolean3.Type = "Cut"
boolean3.addObjects([body9])
doc.recompute()

boolean4 = doc.addObject("PartDesign::Boolean", "Boolean003")
body5.addObject(boolean4)
boolean4.Type = "Cut"
boolean4.addObjects([body6])
body10 = doc.addObject("PartDesign::Body", "Body009")
body10.AllowCompound = True

sketch11 = doc.addObject("Sketcher::SketchObject", "Sketch010")
body10.addObject(sketch11)
sketch11.AttachmentSupport = (doc.getObject("XZ_Plane009"), [""])
sketch11.MapMode = "FlatFace"
sketch11.addGeometry([
    Part.LineSegment(V(197.5, 22.5, 0), V(197.5, 2.5, 0)),
    Part.LineSegment(V(197.5, 2.5, 0), V(200, 2.5, 0)),
    Part.LineSegment(V(200, 2.5, 0), V(200, 22.5, 0)),
    Part.LineSegment(V(200, 22.5, 0), V(197.5, 22.5, 0)),
    Part.LineSegment(V(-200, 22.5, 0), V(-200, 2.5, 0)),
    Part.LineSegment(V(-200, 2.5, 0), V(-197.5, 2.5, 0)),
    Part.LineSegment(V(-197.5, 2.5, 0), V(-197.5, 22.5, 0)),
    Part.LineSegment(V(-197.5, 22.5, 0), V(-200, 22.5, 0)),
    Part.LineSegment(V(-172.5, 3.9, 0), V(-172.5, 2.1, 0)),
    Part.LineSegment(V(-172.5, 2.1, 0), V(-167.5, 2.1, 0)),
    Part.LineSegment(V(-167.5, 2.1, 0), V(-167.5, 3.9, 0)),
    Part.LineSegment(V(-167.5, 3.9, 0), V(-172.5, 3.9, 0)),
    Part.LineSegment(V(-172.5, 22.9, 0), V(-172.5, 21.1, 0)),
    Part.LineSegment(V(-172.5, 21.1, 0), V(-167.5, 21.1, 0)),
    Part.LineSegment(V(-167.5, 21.1, 0), V(-167.5, 22.9, 0)),
    Part.LineSegment(V(-167.5, 22.9, 0), V(-172.5, 22.9, 0)),
    Part.LineSegment(V(167.5, 3.9, 0), V(167.5, 2.1, 0)),
    Part.LineSegment(V(167.5, 2.1, 0), V(172.5, 2.1, 0)),
    Part.LineSegment(V(172.5, 2.1, 0), V(172.5, 3.9, 0)),
    Part.LineSegment(V(172.5, 3.9, 0), V(167.5, 3.9, 0)),
    Part.LineSegment(V(167.5, 22.9, 0), V(167.5, 21.1, 0)),
    Part.LineSegment(V(167.5, 21.1, 0), V(172.5, 21.1, 0)),
    Part.LineSegment(V(172.5, 21.1, 0), V(172.5, 22.9, 0)),
    Part.LineSegment(V(172.5, 22.9, 0), V(167.5, 22.9, 0)),
], False)
sketch11.addConstraint([
    Sketcher.Constraint("Coincident", 0, 2, 1, 1),
    Sketcher.Constraint("Coincident", 1, 2, 2, 1),
    Sketcher.Constraint("Coincident", 2, 2, 3, 1),
    Sketcher.Constraint("Coincident", 3, 2, 0, 1),
    Sketcher.Constraint("Coincident", 4, 2, 5, 1),
    Sketcher.Constraint("Coincident", 5, 2, 6, 1),
    Sketcher.Constraint("Coincident", 6, 2, 7, 1),
    Sketcher.Constraint("Coincident", 7, 2, 4, 1),
    Sketcher.Constraint("Coincident", 8, 2, 9, 1),
    Sketcher.Constraint("Coincident", 9, 2, 10, 1),
    Sketcher.Constraint("Coincident", 10, 2, 11, 1),
    Sketcher.Constraint("Coincident", 11, 2, 8, 1),
    Sketcher.Constraint("Coincident", 12, 2, 13, 1),
    Sketcher.Constraint("Coincident", 13, 2, 14, 1),
    Sketcher.Constraint("Coincident", 14, 2, 15, 1),
    Sketcher.Constraint("Coincident", 15, 2, 12, 1),
    Sketcher.Constraint("Coincident", 16, 2, 17, 1),
    Sketcher.Constraint("Coincident", 17, 2, 18, 1),
    Sketcher.Constraint("Coincident", 18, 2, 19, 1),
    Sketcher.Constraint("Coincident", 19, 2, 16, 1),
    Sketcher.Constraint("Coincident", 20, 2, 21, 1),
    Sketcher.Constraint("Coincident", 21, 2, 22, 1),
    Sketcher.Constraint("Coincident", 22, 2, 23, 1),
    Sketcher.Constraint("Coincident", 23, 2, 20, 1),
    Sketcher.Constraint("Vertical", 0),
    Sketcher.Constraint("Horizontal", 1),
    Sketcher.Constraint("Vertical", 2),
    Sketcher.Constraint("Horizontal", 3),
    Sketcher.Constraint("Vertical", 4),
    Sketcher.Constraint("Horizontal", 5),
    Sketcher.Constraint("Vertical", 6),
    Sketcher.Constraint("Horizontal", 7),
    Sketcher.Constraint("Vertical", 8),
    Sketcher.Constraint("Horizontal", 9),
    Sketcher.Constraint("Vertical", 10),
    Sketcher.Constraint("Horizontal", 11),
    Sketcher.Constraint("Vertical", 12),
    Sketcher.Constraint("Horizontal", 13),
    Sketcher.Constraint("Vertical", 14),
    Sketcher.Constraint("Horizontal", 15),
    Sketcher.Constraint("Vertical", 16),
    Sketcher.Constraint("Horizontal", 17),
    Sketcher.Constraint("Vertical", 18),
    Sketcher.Constraint("Horizontal", 19),
    Sketcher.Constraint("Vertical", 20),
    Sketcher.Constraint("Horizontal", 21),
    Sketcher.Constraint("Vertical", 22),
    Sketcher.Constraint("Horizontal", 23),
    Sketcher.Constraint("Symmetric", 1, 2, 4, 2, -2),
    Sketcher.Constraint("Symmetric", 3, 2, 6, 2, -2),
    Sketcher.Constraint("Symmetric", 9, 2, 16, 2, -2),
    Sketcher.Constraint("Symmetric", 11, 2, 18, 2, -2),
    Sketcher.Constraint("Symmetric", 13, 2, 20, 2, -2),
    Sketcher.Constraint("Symmetric", 15, 2, 22, 2, -2),
    Sketcher.Constraint("Vertical", 11, 2, 12, 2),
    Sketcher.Constraint("Vertical", 10, 2, 13, 2),
    Sketcher.Constraint("Equal", 10, 12),
    Sketcher.Constraint("DistanceX", 9, 1, 9, 2, 5.0),
    Sketcher.Constraint("DistanceY", 0, 2, 0, 1, 20.0),
    Sketcher.Constraint("DistanceX", 1, 1, 1, 2, 2.5),
    Sketcher.Constraint("DistanceY", 8, 2, 8, 1, 1.8),
    Sketcher.Constraint("DistanceX", -1, 1, 1, 2, 200.0),
    Sketcher.Constraint("DistanceX", 5, 2, 8, 2, 25.0),
    Sketcher.Constraint("DistanceY", 8, 2, 12, 2, 19.0),
    Sketcher.Constraint("DistanceY", -1, 1, 0, 2, 2.5),
    Sketcher.Constraint("DistanceY", -1, 1, 8, 2, 2.1),
])
sketch11.setExpression("Constraints[57]", "Params.sketch11_width")
sketch11.setExpression("Constraints[58]", "Params.sketch11_height")
sketch11.setExpression("Constraints[59]", "Params.sketch11_width2")
sketch11.setExpression("Constraints[60]", "Params.sketch11_height2")
pad11 = doc.addObject("PartDesign::Pad", "Pad010")
body10.addObject(pad11)
pad11.Profile = sketch11
pad11.Type = "TwoLengths"
pad11.setExpression("Length", "Params.pad11_length")
pad11.setExpression("Length2", "Params.pad11_length2")
doc.recompute()

body11 = doc.addObject("PartDesign::Body", "Body010")
body11.BaseFeature = body10
boolean5 = doc.addObject("PartDesign::Boolean", "Boolean004")
body2.addObject(boolean5)
boolean5.Type = "Cut"
boolean5.addObjects([body11])
doc.recompute()

fillet2 = doc.addObject("PartDesign::Fillet", "Fillet001")
body2.addObject(fillet2)
fillet2.Base = (boolean5, edges_at(boolean5, [(170, -162.5, 1.05), (170, -114, 1.05)]))
fillet2.setExpression("Radius", "Params.fillet2_radius")
doc.recompute()

body12 = doc.addObject("PartDesign::Body", "Body011")
body12.BaseFeature = body10
boolean6 = doc.addObject("PartDesign::Boolean", "Boolean005")
body3.addObject(boolean6)
boolean6.Type = "Cut"
boolean6.addObjects([body12])
doc.recompute()

fillet3 = doc.addObject("PartDesign::Fillet", "Fillet002")
body3.addObject(fillet3)
fillet3.Base = (boolean6, edges_at(boolean6, [(-151.5, 107.5, 1.25)]))
fillet3.setExpression("Radius", "Params.fillet3_radius")
doc.recompute()

fillet4 = doc.addObject("PartDesign::Fillet", "Fillet003")
body3.addObject(fillet4)
fillet4.Base = (fillet3, edges_at(fillet3, [
    (-197.5, 135, 12.5),
    (-195, 132.5, 13.75),
    (-200, 137.5, 23.75),
    (-200, 137.5, 1.25),
]))
fillet4.setExpression("Radius", "Params.fillet4_radius")
doc.recompute()

body13 = doc.addObject("PartDesign::Body", "Body012")
body13.BaseFeature = body10
boolean7 = doc.addObject("PartDesign::Boolean", "Boolean006")
body4.addObject(boolean7)
boolean7.Type = "Cut"
boolean7.addObjects([body13])
doc.recompute()

fillet5 = doc.addObject("PartDesign::Fillet", "Fillet004")
body4.addObject(fillet5)
fillet5.Base = (boolean7, edges_at(boolean7, [(151.5, 107.5, 1.25)]))
fillet5.setExpression("Radius", "Params.fillet5_radius")
doc.recompute()

fillet6 = doc.addObject("PartDesign::Fillet", "Fillet005")
body4.addObject(fillet6)
fillet6.Base = (fillet5, edges_at(fillet5, [
    (200, 137.5, 23.75),
    (197.5, 135, 12.5),
    (200, 137.5, 1.25),
    (195, 132.5, 13.75),
]))
fillet6.setExpression("Radius", "Params.fillet6_radius")
doc.recompute()

boolean8 = doc.addObject("PartDesign::Boolean", "Boolean007")
body5.addObject(boolean8)
boolean8.Type = "Cut"
boolean8.addObjects([body10])
doc.recompute()

fillet7 = doc.addObject("PartDesign::Fillet", "Fillet006")
body5.addObject(fillet7)
fillet7.Base = (boolean8, edges_at(boolean8, [(-170, -162.5, 1.05), (-170, -114, 1.05)]))
fillet7.setExpression("Radius", "Params.fillet7_radius")

doc.recompute()
